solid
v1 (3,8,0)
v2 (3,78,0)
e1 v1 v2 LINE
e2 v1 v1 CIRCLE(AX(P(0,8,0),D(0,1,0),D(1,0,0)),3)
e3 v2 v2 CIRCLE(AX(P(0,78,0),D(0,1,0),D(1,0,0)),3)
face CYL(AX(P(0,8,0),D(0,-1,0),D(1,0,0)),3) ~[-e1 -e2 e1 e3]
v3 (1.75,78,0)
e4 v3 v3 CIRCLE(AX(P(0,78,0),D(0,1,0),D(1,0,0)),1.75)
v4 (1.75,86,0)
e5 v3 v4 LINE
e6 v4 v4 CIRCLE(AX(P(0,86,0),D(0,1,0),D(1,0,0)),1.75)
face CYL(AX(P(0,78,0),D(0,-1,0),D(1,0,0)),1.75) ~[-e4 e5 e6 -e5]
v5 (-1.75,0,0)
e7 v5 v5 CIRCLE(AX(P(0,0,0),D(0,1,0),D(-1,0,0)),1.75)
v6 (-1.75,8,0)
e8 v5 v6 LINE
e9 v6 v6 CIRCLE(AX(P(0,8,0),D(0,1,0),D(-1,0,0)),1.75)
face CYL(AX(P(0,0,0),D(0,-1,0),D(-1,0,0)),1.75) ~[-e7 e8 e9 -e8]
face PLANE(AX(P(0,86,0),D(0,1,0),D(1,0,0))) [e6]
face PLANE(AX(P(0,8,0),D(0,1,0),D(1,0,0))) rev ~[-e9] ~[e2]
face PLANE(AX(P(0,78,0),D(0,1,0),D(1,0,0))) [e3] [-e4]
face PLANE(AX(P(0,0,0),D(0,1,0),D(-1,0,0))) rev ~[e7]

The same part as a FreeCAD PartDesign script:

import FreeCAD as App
import Part
import Sketcher

doc = App.newDocument("Part")
body = doc.addObject("PartDesign::Body", "Body")

# Sketch on XZ plane
sketch1 = body.newObject("Sketcher::SketchObject", "Sketch")
sketch1.AttachmentSupport = (doc.getObject("XZ_Plane"), [""])
sketch1.MapMode = "FlatFace"
sketch1.addGeometry(Part.Circle(App.Vector(0, 0, 0), App.Vector(0, 0, 1), 1.8), False)
sketch1.addConstraint(Sketcher.Constraint("Coincident", 0, 3, -1, 1))
sketch1.addConstraint(Sketcher.Constraint("Diameter", 0, 3.5))
pad1 = body.newObject("PartDesign::Pad", "Pad")
pad1.Profile = sketch1
pad1.Length = 8
pad1.Reversed = True

# Sketch on XZ plane
sketch2 = body.newObject("Sketcher::SketchObject", "Sketch001")
sketch2.AttachmentSupport = (doc.getObject("XZ_Plane"), [""])
sketch2.MapMode = "FlatFace"
sketch2.AttachmentOffset = App.Placement(App.Vector(0, 0, -8), App.Rotation())
sketch2.addGeometry(Part.Circle(App.Vector(0, 0, 0), App.Vector(0, 0, 1), 3), False)
sketch2.addConstraint(Sketcher.Constraint("Coincident", 0, 3, -1, 1))
sketch2.addConstraint(Sketcher.Constraint("Diameter", 0, 6.0))
pad2 = body.newObject("PartDesign::Pad", "Pad001")
pad2.Profile = sketch2
pad2.Length = 70
pad2.Reversed = True

# Sketch on XZ plane
sketch3 = body.newObject("Sketcher::SketchObject", "Sketch002")
sketch3.AttachmentSupport = (doc.getObject("XZ_Plane"), [""])
sketch3.MapMode = "FlatFace"
sketch3.AttachmentOffset = App.Placement(App.Vector(0, 0, -78), App.Rotation())
sketch3.addGeometry(Part.Circle(App.Vector(0, 0, 0), App.Vector(0, 0, 1), 1.8), False)
sketch3.addConstraint(Sketcher.Constraint("Coincident", 0, 3, -1, 1))
sketch3.addConstraint(Sketcher.Constraint("Diameter", 0, 3.5))
pad3 = body.newObject("PartDesign::Pad", "Pad002")
pad3.Profile = sketch3
pad3.Length = 8
pad3.Reversed = True

doc.recompute()
